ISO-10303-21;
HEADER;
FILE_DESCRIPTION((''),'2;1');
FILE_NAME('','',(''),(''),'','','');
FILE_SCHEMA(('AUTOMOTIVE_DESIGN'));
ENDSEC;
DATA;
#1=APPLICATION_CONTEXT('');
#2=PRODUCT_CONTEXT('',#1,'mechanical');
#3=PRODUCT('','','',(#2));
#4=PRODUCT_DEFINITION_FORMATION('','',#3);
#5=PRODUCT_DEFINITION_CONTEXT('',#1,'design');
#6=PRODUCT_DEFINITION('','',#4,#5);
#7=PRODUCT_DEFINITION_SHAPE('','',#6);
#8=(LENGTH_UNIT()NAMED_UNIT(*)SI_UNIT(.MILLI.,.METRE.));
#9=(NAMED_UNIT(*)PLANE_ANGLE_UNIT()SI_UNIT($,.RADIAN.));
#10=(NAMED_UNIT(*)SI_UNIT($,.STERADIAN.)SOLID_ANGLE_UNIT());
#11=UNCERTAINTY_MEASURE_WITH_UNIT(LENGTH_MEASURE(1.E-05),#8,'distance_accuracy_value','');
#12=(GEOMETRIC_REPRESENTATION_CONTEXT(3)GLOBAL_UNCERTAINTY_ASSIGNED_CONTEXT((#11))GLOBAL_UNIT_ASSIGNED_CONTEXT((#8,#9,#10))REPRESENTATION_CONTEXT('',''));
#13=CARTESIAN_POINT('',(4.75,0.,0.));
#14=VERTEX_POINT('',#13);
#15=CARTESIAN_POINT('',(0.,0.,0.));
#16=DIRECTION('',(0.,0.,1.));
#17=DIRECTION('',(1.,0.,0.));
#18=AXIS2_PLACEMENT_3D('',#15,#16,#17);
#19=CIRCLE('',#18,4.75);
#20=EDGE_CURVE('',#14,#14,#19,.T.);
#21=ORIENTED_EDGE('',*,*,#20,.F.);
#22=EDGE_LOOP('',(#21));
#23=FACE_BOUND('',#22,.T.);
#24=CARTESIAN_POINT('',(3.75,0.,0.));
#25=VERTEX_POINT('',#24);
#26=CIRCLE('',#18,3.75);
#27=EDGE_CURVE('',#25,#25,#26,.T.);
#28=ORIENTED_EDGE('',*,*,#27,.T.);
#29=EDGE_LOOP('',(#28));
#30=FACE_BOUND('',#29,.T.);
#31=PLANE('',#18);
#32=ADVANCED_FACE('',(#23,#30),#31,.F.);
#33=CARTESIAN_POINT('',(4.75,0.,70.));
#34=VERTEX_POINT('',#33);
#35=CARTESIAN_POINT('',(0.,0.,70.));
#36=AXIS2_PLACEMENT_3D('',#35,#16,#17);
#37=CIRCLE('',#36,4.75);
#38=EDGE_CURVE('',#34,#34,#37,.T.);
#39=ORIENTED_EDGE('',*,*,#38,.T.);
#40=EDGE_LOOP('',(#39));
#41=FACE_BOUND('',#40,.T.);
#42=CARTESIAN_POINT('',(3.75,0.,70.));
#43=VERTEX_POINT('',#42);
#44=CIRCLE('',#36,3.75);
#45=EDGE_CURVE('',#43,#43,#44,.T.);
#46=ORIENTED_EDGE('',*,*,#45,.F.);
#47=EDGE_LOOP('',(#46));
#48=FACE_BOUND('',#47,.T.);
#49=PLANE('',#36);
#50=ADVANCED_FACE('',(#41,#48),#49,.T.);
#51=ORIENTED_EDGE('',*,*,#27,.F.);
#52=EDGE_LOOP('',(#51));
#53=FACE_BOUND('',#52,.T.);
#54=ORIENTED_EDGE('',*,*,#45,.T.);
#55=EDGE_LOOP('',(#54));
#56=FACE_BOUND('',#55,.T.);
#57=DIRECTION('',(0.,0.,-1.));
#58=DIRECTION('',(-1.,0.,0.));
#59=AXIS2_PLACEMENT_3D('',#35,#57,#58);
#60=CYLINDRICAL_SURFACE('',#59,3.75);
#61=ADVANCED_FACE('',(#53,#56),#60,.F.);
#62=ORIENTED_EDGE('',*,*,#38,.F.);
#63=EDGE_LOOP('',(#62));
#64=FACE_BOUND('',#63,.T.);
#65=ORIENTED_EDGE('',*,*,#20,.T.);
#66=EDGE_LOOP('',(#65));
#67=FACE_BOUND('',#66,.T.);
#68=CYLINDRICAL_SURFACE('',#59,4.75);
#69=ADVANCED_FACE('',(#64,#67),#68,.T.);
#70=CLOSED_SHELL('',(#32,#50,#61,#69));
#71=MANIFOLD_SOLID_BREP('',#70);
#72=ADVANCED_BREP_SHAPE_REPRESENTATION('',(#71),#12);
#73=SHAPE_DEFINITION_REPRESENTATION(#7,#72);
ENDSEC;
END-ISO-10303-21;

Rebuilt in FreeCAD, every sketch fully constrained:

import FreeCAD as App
import Part
import Sketcher

doc = App.newDocument("Part")
body = doc.addObject("PartDesign::Body", "Body")

# Sketch on XY plane
sketch1 = body.newObject("Sketcher::SketchObject", "Sketch")
sketch1.AttachmentSupport = (doc.getObject("XY_Plane"), [""])
sketch1.MapMode = "FlatFace"
sketch1.addGeometry(Part.Circle(App.Vector(0, 0, 0), App.Vector(0, 0, 1), 4.8), False)
sketch1.addGeometry(Part.Circle(App.Vector(0, 0, 0), App.Vector(0, 0, 1), 3.8), False)
sketch1.addConstraint(Sketcher.Constraint("Coincident", 0, 3, -1, 1))
sketch1.addConstraint(Sketcher.Constraint("Coincident", 1, 3, -1, 1))
sketch1.addConstraint(Sketcher.Constraint("Diameter", 0, 9.5))
sketch1.addConstraint(Sketcher.Constraint("Diameter", 1, 7.5))
pad1 = body.newObject("PartDesign::Pad", "Pad")
pad1.Profile = sketch1
pad1.Length = 70

doc.recompute()
